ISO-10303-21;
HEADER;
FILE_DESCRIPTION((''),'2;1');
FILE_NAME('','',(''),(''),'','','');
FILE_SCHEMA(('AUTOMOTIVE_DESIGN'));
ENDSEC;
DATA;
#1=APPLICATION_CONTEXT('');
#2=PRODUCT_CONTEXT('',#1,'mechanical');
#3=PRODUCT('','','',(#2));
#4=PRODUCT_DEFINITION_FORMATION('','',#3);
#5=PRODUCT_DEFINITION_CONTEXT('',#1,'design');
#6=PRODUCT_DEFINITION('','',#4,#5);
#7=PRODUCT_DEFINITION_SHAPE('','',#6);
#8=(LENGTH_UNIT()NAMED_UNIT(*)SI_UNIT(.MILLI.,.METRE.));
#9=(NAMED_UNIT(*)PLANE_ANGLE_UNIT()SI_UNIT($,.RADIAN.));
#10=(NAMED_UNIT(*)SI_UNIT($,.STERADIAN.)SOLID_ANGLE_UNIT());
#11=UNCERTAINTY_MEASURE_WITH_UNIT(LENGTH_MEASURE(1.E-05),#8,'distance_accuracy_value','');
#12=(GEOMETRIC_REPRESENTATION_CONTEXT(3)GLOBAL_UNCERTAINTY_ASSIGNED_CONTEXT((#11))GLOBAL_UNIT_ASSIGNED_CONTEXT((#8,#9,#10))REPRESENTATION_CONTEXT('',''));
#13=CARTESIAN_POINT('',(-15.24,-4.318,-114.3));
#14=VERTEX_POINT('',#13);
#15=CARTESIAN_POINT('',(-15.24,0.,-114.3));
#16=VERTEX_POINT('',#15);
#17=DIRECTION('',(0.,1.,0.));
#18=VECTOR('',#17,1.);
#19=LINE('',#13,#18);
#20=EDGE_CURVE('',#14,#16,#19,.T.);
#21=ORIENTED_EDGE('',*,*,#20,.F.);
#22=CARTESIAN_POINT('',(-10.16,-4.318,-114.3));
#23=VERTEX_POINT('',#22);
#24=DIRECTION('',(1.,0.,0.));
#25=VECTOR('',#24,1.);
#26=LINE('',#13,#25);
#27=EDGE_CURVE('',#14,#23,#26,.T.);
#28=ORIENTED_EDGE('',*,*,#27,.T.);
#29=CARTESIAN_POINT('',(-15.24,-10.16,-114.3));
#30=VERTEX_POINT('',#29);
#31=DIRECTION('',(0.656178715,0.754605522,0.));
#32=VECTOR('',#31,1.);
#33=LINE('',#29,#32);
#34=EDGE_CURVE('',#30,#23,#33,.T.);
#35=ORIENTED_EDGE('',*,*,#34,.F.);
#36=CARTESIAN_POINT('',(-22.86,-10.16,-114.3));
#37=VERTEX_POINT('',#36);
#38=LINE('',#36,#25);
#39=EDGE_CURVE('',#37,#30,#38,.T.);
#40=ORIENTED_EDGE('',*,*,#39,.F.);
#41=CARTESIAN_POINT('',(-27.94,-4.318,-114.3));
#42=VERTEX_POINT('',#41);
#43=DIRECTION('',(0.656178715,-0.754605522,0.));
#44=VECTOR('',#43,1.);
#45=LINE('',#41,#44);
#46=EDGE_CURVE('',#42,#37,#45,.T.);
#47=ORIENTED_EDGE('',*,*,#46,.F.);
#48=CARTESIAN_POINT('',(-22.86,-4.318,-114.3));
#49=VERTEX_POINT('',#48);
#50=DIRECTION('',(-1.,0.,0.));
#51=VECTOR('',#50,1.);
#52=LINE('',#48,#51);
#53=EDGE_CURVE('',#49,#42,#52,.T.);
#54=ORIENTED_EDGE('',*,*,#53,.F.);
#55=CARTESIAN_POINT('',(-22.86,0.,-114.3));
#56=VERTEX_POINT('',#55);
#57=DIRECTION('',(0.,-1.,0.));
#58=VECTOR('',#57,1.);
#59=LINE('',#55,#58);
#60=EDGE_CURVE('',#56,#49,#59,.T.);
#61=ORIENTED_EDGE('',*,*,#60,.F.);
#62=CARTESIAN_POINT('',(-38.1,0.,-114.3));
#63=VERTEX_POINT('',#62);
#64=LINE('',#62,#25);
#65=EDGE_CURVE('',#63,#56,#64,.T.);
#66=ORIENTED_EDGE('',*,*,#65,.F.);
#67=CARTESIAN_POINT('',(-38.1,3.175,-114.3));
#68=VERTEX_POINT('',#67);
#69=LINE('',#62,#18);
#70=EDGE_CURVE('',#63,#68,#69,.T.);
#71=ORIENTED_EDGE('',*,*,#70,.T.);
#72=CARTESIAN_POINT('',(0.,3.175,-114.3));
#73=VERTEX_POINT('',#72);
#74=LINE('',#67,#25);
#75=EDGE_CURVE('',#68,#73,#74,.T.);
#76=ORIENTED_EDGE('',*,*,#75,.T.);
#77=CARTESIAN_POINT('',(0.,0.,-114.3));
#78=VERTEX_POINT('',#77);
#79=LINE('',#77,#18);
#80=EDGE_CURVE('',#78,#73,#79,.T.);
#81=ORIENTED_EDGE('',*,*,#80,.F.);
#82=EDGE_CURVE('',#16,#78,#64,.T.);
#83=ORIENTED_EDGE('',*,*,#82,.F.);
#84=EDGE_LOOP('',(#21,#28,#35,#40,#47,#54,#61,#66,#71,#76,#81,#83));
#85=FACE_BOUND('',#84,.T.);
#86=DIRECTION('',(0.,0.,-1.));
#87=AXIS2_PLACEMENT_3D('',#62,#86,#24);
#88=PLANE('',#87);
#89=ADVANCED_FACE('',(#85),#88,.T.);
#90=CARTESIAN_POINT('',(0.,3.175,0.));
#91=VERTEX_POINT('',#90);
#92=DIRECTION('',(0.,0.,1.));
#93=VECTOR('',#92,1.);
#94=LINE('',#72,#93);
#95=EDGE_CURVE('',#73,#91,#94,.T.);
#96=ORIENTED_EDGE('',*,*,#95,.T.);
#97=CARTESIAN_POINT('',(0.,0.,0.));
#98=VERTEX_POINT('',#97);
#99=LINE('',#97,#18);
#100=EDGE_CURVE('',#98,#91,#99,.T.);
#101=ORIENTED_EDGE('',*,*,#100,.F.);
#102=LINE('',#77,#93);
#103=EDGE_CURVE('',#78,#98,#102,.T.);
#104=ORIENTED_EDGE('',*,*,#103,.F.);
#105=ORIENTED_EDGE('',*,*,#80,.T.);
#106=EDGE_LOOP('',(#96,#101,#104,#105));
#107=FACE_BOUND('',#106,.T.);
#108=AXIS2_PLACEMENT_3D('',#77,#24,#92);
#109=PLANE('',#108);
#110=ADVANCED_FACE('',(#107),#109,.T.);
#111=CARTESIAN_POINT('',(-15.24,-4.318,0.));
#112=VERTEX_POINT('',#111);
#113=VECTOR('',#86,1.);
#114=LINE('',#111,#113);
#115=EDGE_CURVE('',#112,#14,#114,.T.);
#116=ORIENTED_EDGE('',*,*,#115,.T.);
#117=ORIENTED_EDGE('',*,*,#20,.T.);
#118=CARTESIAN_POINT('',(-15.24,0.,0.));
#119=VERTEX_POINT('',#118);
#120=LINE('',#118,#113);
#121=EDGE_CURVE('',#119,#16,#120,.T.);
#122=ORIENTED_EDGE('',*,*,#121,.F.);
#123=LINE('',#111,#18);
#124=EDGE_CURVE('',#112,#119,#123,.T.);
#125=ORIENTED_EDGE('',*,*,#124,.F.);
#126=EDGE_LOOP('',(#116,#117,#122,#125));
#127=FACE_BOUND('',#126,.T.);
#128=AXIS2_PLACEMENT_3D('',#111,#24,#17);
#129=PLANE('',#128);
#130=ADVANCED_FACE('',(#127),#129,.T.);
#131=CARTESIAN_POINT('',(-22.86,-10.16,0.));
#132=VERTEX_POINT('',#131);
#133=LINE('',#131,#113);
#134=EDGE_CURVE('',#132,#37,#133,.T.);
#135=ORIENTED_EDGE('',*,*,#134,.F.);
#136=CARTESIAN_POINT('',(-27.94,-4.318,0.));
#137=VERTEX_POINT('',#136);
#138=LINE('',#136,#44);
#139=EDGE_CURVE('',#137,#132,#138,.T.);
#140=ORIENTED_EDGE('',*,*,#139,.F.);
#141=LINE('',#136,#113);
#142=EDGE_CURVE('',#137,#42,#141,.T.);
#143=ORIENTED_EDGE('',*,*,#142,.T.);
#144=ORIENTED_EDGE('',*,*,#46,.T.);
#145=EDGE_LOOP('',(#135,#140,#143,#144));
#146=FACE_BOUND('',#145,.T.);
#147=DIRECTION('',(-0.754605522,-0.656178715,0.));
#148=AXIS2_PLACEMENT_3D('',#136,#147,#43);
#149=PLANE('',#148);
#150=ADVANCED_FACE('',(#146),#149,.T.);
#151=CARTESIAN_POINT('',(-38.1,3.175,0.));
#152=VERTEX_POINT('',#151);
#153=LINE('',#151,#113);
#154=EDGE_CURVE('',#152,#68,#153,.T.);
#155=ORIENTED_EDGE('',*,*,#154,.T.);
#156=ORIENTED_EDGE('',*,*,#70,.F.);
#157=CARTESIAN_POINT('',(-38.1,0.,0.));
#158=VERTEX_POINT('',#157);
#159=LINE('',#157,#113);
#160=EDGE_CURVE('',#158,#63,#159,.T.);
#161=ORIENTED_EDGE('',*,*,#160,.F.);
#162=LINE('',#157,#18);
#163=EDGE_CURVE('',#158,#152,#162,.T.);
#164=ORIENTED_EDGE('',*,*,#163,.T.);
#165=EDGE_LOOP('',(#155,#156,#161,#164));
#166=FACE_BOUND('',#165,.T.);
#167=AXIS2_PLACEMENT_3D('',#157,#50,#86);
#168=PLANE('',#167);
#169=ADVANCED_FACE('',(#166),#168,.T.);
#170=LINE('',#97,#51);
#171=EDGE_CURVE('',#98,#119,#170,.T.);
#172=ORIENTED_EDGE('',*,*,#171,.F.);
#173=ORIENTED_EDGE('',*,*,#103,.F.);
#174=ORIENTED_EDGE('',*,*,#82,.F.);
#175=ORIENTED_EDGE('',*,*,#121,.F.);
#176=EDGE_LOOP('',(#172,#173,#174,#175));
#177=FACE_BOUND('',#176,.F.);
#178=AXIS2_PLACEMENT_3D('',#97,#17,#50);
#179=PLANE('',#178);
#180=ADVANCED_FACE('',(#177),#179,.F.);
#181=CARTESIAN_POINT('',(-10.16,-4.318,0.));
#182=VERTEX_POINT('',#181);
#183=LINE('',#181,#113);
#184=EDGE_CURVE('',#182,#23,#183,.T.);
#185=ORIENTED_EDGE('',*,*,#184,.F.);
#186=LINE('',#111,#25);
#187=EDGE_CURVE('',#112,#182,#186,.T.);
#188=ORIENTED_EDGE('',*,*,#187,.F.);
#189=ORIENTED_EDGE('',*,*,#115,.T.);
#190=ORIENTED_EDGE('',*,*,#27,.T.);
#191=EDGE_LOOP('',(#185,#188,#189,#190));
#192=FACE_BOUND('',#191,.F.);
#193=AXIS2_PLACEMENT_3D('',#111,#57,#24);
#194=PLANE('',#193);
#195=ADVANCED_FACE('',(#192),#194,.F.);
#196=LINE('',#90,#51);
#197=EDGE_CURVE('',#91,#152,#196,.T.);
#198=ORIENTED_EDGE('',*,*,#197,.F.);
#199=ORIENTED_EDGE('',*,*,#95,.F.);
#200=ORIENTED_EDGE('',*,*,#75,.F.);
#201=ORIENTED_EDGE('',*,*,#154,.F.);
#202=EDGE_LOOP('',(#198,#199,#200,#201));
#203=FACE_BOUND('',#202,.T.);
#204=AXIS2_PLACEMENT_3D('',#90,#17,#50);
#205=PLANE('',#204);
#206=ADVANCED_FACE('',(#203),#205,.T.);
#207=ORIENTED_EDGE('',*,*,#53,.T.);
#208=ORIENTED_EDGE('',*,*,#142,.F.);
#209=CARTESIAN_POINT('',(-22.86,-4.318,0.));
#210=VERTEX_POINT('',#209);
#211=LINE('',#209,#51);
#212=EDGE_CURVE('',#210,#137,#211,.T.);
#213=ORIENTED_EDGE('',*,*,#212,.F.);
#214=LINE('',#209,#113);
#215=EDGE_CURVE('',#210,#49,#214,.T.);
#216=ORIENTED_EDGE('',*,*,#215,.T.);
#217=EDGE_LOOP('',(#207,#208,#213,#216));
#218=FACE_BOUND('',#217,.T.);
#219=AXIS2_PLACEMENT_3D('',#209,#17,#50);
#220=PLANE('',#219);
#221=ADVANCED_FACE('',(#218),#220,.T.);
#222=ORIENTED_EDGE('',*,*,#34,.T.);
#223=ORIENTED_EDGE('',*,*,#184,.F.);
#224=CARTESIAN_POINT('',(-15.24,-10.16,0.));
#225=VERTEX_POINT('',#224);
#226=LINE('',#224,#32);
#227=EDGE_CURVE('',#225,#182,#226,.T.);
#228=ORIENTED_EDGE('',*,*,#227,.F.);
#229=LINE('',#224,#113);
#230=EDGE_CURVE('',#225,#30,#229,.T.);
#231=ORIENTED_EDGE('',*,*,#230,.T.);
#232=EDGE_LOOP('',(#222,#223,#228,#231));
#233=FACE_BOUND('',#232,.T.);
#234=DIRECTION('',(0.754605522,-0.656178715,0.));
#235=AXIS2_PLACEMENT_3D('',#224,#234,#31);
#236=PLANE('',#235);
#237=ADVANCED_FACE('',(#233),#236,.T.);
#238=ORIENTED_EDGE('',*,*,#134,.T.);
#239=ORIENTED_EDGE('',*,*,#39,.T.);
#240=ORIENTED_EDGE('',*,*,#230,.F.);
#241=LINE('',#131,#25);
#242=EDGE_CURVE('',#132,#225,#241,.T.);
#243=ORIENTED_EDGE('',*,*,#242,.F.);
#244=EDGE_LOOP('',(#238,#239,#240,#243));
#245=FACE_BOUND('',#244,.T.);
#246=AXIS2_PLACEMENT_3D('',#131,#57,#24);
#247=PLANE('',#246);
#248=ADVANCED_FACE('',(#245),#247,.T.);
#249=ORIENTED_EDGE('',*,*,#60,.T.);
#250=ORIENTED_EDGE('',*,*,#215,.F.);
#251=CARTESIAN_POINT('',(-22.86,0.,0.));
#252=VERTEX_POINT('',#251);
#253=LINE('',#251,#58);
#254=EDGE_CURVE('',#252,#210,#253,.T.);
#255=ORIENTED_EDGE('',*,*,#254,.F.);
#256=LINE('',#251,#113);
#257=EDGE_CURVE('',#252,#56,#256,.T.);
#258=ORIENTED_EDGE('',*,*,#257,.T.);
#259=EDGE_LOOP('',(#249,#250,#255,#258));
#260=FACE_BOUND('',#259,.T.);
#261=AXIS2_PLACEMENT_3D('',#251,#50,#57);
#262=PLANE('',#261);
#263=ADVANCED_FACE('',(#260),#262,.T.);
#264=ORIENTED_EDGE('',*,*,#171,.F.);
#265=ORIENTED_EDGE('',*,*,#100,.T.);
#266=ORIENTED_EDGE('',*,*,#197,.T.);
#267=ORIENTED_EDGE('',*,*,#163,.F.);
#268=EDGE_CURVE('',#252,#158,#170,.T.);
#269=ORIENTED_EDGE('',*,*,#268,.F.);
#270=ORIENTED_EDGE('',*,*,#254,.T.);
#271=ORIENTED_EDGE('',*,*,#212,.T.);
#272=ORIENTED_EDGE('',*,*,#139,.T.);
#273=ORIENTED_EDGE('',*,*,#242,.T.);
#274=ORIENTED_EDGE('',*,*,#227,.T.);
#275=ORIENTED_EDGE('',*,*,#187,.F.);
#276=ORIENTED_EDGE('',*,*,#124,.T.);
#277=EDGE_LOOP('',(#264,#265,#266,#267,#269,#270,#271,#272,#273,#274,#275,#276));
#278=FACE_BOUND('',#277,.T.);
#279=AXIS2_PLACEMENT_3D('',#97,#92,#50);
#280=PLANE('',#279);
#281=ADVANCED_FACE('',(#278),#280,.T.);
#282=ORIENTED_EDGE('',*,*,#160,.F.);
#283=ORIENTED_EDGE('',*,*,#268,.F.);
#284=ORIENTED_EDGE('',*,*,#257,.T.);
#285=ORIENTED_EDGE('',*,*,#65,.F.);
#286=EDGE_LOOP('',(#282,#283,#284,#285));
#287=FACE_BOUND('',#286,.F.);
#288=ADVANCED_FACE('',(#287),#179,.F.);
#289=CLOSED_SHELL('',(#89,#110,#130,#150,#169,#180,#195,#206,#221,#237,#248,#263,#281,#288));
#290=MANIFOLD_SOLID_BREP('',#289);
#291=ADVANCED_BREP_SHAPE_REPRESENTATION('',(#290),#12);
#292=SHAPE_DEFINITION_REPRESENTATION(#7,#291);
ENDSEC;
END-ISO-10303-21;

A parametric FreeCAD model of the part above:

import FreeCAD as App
import Part
import Sketcher

V = App.Vector
Q = App.Units.Quantity

doc = App.newDocument("Part")
params = doc.addObject("Spreadsheet::Sheet", "Params")
for row, (alias, value) in enumerate([
    ("sketch1_width", "1.5 in"),
    ("sketch1_height", "4.5 in"),
    ("pad1_length", "0.125 in"),
    ("sketch2_width", "0.3 in"),
    ("sketch2_width2", "0.2 in"),
    ("sketch2_height", "0.17 in"),
    ("pad2_length", "4.5 in"),
], start=1):
    params.set(f"A{row}", alias)
    params.set(f"B{row}", "=" + value)
    params.setAlias(f"B{row}", alias)

body = doc.addObject("PartDesign::Body", "Body")

sketch1 = body.newObject("Sketcher::SketchObject", "Sketch")
sketch1.AttachmentSupport = (doc.getObject("XZ_Plane"), [""])
sketch1.MapMode = "FlatFace"
sketch1.addGeometry([
    Part.LineSegment(V(-38, 0, 0), V(0, 0, 0)),
    Part.LineSegment(V(0, 0, 0), V(0, -114, 0)),
    Part.LineSegment(V(0, -114, 0), V(-38, -114, 0)),
    Part.LineSegment(V(-38, -114, 0), V(-38, 0, 0)),
], False)
sketch1.addConstraint([
    Sketcher.Constraint("Coincident", 0, 2, 1, 1),
    Sketcher.Constraint("Coincident", 1, 2, 2, 1),
    Sketcher.Constraint("Coincident", 2, 2, 3, 1),
    Sketcher.Constraint("Coincident", 3, 2, 0, 1),
    Sketcher.Constraint("Horizontal", 0),
    Sketcher.Constraint("Vertical", 1),
    Sketcher.Constraint("Horizontal", 2),
    Sketcher.Constraint("Vertical", 3),
    Sketcher.Constraint("Coincident", 0, 2, -1, 1),
    Sketcher.Constraint("DistanceX", 0, 1, 0, 2, Q("1.5 in")),
    Sketcher.Constraint("DistanceY", 1, 2, 1, 1, Q("4.5 in")),
])
sketch1.setExpression("Constraints[9]", "Params.sketch1_width")
sketch1.setExpression("Constraints[10]", "Params.sketch1_height")
pad1 = body.newObject("PartDesign::Pad", "Pad")
pad1.Profile = sketch1
pad1.setExpression("Length", "Params.pad1_length")
pad1.Reversed = True

sketch2 = body.newObject("Sketcher::SketchObject", "Sketch001")
sketch2.AttachmentSupport = (doc.getObject("XY_Plane"), [""])
sketch2.MapMode = "FlatFace"
sketch2.addGeometry([
    Part.LineSegment(V(-15.2, -4.3, 0), V(-15.2, 0, 0)),
    Part.LineSegment(V(-15.2, 0, 0), V(-22.9, 0, 0)),
    Part.LineSegment(V(-22.9, 0, 0), V(-22.9, -4.3, 0)),
    Part.LineSegment(V(-22.9, -4.3, 0), V(-27.9, -4.3, 0)),
    Part.LineSegment(V(-27.9, -4.3, 0), V(-22.9, -10.2, 0)),
    Part.LineSegment(V(-22.9, -10.2, 0), V(-15.2, -10.2, 0)),
    Part.LineSegment(V(-15.2, -10.2, 0), V(-10.2, -4.3, 0)),
    Part.LineSegment(V(-10.2, -4.3, 0), V(-15.2, -4.3, 0)),
], False)
sketch2.addConstraint([
    Sketcher.Constraint("Coincident", 0, 2, 1, 1),
    Sketcher.Constraint("Coincident", 1, 2, 2, 1),
    Sketcher.Constraint("Coincident", 2, 2, 3, 1),
    Sketcher.Constraint("Coincident", 3, 2, 4, 1),
    Sketcher.Constraint("Coincident", 4, 2, 5, 1),
    Sketcher.Constraint("Coincident", 5, 2, 6, 1),
    Sketcher.Constraint("Coincident", 6, 2, 7, 1),
    Sketcher.Constraint("Coincident", 7, 2, 0, 1),
    Sketcher.Constraint("Vertical", 0),
    Sketcher.Constraint("Horizontal", 1),
    Sketcher.Constraint("Vertical", 2),
    Sketcher.Constraint("Horizontal", 3),
    Sketcher.Constraint("Horizontal", 5),
    Sketcher.Constraint("Horizontal", 7),
    Sketcher.Constraint("PointOnObject", 0, 2, -1),
    Sketcher.Constraint("Horizontal", 3, 2, 6, 2),
    Sketcher.Constraint("Vertical", 2, 2, 4, 2),
    Sketcher.Constraint("Vertical", 0, 2, 5, 2),
    Sketcher.Constraint("Equal", 3, 7),
    Sketcher.Constraint("DistanceX", 1, 2, 1, 1, Q("0.3 in")),
    Sketcher.Constraint("DistanceX", 3, 2, 3, 1, Q("0.2 in")),
    Sketcher.Constraint("DistanceX", 0, 2, -1, 1, Q("0.6 in")),
    Sketcher.Constraint("DistanceY", 4, 2, -1, 1, Q("0.4 in")),
    Sketcher.Constraint("DistanceY", 0, 1, 0, 2, Q("0.17 in")),
])
sketch2.setExpression("Constraints[19]", "Params.sketch2_width")
sketch2.setExpression("Constraints[20]", "Params.sketch2_width2")
sketch2.setExpression("Constraints[23]", "Params.sketch2_height")
pad2 = body.newObject("PartDesign::Pad", "Pad001")
pad2.Profile = sketch2
pad2.setExpression("Length", "Params.pad2_length")
pad2.Reversed = True

doc.recompute()
